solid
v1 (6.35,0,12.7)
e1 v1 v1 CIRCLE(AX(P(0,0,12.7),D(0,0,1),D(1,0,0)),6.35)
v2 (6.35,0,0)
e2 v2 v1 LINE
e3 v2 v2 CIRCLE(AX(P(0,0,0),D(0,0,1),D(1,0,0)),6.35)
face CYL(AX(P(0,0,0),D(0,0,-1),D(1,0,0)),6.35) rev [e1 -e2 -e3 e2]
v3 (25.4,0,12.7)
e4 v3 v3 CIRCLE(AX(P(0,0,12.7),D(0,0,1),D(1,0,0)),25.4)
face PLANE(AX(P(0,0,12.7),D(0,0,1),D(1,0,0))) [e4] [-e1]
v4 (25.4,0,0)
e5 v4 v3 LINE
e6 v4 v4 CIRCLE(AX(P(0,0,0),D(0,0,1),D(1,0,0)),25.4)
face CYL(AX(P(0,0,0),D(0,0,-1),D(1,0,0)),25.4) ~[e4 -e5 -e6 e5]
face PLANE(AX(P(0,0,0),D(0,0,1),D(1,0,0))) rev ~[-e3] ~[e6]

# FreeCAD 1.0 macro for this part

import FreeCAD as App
import Part
import Sketcher
from FreeCAD import Vector
Q = App.Units.Quantity

doc = App.newDocument("Part")
body = doc.addObject("PartDesign::Body", "Body")

# Sketch on XY plane
sketch1 = body.newObject("Sketcher::SketchObject", "Sketch")
sketch1.AttachmentSupport = (doc.getObject("XY_Plane"), [""])
sketch1.MapMode = "FlatFace"
sketch1.addGeometry(Part.Circle(Vector(0, 0, 0), Vector(0, 0, 1), 25), False)
sketch1.addGeometry(Part.Circle(Vector(0, 0, 0), Vector(0, 0, 1), 6), False)
sketch1.addConstraint(Sketcher.Constraint("Coincident", 0, 3, -1, 1))
sketch1.addConstraint(Sketcher.Constraint("Coincident", 1, 3, -1, 1))
sketch1.addConstraint(Sketcher.Constraint("Diameter", 0, Q("2 in")))
sketch1.addConstraint(Sketcher.Constraint("Diameter", 1, Q("0.5 in")))
pad1 = body.newObject("PartDesign::Pad", "Pad")
pad1.Profile = sketch1
pad1.Length = Q("0.5 in")

doc.recompute()
